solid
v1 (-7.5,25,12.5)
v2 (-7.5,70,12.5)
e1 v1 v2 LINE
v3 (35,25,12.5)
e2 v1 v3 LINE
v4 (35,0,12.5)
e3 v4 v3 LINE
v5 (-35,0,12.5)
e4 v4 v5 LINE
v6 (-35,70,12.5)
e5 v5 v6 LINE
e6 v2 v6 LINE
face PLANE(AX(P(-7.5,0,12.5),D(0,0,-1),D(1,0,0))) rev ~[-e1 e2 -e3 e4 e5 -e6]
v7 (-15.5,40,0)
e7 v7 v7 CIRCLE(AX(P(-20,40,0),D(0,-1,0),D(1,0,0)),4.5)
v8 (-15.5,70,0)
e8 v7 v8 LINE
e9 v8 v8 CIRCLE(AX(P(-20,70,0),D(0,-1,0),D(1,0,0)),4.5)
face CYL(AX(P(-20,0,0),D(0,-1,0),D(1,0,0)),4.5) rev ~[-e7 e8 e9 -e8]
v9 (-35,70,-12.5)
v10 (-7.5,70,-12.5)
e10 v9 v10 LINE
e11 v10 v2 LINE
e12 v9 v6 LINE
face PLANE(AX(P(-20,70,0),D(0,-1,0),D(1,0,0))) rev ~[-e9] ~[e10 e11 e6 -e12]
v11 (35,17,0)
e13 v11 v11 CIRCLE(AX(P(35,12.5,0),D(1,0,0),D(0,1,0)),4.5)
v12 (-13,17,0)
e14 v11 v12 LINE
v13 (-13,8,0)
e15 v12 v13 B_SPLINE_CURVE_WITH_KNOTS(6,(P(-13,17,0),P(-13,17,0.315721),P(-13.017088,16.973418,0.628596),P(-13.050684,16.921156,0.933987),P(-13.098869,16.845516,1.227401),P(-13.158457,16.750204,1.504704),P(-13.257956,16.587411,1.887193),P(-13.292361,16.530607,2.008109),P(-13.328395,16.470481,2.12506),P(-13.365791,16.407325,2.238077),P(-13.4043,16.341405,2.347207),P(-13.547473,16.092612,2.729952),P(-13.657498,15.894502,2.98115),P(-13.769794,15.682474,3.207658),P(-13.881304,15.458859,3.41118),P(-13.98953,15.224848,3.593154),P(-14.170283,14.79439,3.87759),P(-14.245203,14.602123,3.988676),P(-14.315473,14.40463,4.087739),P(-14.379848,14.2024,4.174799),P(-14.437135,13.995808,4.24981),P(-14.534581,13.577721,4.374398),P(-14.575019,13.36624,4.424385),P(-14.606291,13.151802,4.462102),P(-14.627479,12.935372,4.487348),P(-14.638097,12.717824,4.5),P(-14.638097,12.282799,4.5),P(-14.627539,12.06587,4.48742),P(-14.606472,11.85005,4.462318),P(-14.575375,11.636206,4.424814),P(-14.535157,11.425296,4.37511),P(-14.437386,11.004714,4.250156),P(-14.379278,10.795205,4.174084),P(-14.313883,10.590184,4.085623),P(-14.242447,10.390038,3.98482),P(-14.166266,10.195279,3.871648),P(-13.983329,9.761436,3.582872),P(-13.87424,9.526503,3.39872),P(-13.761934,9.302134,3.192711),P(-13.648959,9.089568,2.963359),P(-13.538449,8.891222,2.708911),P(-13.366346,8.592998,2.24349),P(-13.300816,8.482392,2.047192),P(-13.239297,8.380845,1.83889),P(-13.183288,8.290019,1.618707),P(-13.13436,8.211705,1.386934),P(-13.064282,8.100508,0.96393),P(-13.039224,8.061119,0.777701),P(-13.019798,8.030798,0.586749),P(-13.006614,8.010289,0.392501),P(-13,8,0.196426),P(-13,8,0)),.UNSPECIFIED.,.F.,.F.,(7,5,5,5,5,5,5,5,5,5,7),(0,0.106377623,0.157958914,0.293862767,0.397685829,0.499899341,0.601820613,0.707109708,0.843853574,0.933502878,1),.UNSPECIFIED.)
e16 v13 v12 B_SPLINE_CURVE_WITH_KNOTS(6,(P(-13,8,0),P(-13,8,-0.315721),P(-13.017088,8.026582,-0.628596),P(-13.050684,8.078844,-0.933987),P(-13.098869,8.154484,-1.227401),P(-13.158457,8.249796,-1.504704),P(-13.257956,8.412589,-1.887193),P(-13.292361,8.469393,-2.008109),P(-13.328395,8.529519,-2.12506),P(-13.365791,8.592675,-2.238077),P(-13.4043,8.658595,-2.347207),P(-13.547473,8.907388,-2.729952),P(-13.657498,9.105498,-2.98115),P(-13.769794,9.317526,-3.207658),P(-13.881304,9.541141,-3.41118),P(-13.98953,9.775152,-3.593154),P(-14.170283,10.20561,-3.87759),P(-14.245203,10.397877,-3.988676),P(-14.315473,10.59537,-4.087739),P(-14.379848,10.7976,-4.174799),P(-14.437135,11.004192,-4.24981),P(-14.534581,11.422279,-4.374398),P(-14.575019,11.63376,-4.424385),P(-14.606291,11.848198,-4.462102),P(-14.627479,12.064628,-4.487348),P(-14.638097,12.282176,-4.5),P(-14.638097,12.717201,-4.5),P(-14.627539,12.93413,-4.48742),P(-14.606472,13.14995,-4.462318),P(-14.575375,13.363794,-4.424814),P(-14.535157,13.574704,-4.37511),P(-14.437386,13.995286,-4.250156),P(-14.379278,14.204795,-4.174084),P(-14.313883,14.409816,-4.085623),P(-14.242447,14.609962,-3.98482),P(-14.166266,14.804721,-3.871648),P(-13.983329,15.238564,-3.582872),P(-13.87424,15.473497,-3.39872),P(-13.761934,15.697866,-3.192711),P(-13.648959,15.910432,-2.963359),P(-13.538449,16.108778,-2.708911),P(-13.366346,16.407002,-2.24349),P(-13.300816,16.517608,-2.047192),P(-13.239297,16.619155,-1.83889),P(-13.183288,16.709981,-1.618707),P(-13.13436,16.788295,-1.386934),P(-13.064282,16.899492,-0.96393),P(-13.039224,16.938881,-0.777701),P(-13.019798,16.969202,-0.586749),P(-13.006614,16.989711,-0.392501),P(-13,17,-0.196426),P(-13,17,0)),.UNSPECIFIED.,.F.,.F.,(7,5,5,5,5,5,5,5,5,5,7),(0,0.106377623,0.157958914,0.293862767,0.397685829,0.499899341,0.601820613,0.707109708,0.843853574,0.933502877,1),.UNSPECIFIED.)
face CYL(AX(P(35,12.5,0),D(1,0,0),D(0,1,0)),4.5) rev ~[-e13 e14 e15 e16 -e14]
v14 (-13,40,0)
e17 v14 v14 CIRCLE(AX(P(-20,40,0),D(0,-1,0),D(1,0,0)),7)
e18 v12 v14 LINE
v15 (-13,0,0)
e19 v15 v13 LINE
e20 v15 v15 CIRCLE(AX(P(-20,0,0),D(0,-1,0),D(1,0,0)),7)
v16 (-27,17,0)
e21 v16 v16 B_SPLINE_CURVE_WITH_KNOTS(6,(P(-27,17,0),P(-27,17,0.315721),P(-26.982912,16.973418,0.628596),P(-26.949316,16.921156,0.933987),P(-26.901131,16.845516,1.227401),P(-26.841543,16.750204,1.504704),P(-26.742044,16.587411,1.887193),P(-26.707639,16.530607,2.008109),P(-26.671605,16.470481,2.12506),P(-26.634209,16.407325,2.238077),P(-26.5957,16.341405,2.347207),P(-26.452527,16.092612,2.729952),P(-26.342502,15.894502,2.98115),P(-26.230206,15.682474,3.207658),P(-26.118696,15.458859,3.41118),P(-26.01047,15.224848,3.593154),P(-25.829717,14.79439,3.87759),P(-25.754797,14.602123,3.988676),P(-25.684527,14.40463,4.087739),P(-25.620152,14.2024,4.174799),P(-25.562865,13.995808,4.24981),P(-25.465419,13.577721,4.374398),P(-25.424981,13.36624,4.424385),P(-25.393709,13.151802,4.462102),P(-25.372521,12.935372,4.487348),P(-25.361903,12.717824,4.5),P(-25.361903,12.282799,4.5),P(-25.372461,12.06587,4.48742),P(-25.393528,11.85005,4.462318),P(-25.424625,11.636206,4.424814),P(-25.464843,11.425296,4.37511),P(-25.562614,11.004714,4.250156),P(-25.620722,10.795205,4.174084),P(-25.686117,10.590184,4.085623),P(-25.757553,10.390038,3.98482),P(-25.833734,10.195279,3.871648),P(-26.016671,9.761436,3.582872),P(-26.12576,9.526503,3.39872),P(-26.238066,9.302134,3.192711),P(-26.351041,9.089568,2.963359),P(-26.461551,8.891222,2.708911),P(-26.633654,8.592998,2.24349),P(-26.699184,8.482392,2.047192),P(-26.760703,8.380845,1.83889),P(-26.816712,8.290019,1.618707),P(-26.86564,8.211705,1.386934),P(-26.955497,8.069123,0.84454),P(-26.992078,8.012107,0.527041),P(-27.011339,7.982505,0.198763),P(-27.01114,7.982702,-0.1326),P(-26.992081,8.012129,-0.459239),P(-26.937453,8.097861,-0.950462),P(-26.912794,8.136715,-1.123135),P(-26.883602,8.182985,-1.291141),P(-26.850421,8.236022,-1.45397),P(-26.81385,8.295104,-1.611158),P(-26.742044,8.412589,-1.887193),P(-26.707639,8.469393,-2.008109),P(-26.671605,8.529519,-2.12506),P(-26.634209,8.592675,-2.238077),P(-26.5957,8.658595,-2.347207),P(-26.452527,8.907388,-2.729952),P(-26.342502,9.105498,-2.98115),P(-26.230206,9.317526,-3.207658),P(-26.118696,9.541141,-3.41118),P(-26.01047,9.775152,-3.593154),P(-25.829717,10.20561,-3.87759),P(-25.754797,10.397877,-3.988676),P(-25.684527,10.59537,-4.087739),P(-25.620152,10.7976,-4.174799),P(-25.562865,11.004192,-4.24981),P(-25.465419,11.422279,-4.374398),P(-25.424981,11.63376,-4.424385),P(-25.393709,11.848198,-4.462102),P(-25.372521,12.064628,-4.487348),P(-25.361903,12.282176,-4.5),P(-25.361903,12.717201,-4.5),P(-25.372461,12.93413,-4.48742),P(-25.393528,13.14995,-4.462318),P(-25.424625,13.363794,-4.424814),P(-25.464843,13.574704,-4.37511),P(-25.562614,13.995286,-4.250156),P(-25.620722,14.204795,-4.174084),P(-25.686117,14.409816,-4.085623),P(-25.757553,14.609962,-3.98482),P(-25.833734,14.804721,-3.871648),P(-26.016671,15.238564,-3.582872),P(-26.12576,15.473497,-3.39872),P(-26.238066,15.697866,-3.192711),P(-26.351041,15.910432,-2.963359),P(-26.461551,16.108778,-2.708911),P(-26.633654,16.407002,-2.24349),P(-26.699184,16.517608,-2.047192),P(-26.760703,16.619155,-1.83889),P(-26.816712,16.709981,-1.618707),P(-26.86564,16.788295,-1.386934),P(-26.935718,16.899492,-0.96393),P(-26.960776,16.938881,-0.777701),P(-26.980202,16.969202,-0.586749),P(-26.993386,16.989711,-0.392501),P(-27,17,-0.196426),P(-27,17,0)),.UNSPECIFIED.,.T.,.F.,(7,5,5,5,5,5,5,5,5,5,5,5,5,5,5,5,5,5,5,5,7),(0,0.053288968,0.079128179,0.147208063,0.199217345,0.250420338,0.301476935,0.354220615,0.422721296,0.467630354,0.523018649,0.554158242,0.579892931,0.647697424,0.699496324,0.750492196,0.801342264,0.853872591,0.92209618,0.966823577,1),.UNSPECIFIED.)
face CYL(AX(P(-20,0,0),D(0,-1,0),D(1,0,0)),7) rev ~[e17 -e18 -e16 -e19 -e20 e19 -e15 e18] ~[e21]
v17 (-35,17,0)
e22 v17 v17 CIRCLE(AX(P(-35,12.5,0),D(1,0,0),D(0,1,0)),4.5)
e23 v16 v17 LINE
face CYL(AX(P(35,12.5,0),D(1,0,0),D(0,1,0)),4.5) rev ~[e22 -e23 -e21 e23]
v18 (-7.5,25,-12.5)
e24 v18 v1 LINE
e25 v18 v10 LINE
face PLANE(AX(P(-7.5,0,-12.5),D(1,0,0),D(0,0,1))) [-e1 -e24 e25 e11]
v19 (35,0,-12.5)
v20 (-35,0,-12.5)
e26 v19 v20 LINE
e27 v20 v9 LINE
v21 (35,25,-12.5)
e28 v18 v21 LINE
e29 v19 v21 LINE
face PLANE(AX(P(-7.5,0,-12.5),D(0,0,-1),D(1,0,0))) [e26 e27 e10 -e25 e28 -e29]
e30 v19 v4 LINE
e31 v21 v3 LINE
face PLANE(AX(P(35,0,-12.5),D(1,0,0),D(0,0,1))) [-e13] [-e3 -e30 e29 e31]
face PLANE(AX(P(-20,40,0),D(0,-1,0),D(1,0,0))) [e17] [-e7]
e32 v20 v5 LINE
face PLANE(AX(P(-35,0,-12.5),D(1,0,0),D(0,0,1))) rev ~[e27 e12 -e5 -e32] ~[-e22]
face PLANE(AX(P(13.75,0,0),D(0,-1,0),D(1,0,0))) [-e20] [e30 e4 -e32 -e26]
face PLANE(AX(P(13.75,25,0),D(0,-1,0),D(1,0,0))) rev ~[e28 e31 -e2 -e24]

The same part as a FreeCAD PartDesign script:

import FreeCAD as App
import Part
import Sketcher
from FreeCAD import Vector


def add_polygon(sketch, points):
    """Adds a closed chain of lines whose ends are joined by coincident constraints."""
    first, n = sketch.GeometryCount, len(points)
    for a, b in zip(points, points[1:] + points[:1]):
        sketch.addGeometry(Part.LineSegment(App.Vector(*a, 0), App.Vector(*b, 0)), False)
    for i in range(n):
        sketch.addConstraint(Sketcher.Constraint("Coincident", first + i, 2, first + (i + 1) % n, 1))

doc = App.newDocument("Part")
body = doc.addObject("PartDesign::Body", "Body")

sketch1 = doc.addObject("Sketcher::SketchObject", "Sketch")
body.addObject(sketch1)
sketch1.AttachmentSupport = (doc.XZ_Plane, [""])
sketch1.MapMode = "FlatFace"
add_polygon(sketch1, [(-7.5, -12.5), (-7.5, 12.5), (-35, 12.5), (-35, -12.5)])
sketch1.addGeometry(Part.Circle(Vector(-20, 0, 0), Vector(0, 0, 1), 4.5), False)
sketch1.addConstraint([
    Sketcher.Constraint("Vertical", 0),
    Sketcher.Constraint("Horizontal", 1),
    Sketcher.Constraint("Vertical", 2),
    Sketcher.Constraint("Horizontal", 3),
    Sketcher.Constraint("PointOnObject", 4, 3, -1),
    Sketcher.Constraint("Diameter", 4, 9.0),
    Sketcher.Constraint("DistanceY", 0, 1, 0, 2, 25.0),
    Sketcher.Constraint("DistanceX", 1, 2, 1, 1, 27.5),
    Sketcher.Constraint("DistanceX", 4, 3, -1, 1, 20.0),
    Sketcher.Constraint("DistanceX", 1, 2, -1, 1, 35.0),
    Sketcher.Constraint("DistanceY", -1, 1, 0, 2, 12.5),
])
pad1 = doc.addObject("PartDesign::Pad", "Pad")
body.addObject(pad1)
pad1.Profile = sketch1
pad1.Length = 70
pad1.Reversed = True

sketch2 = doc.addObject("Sketcher::SketchObject", "Sketch001")
body.addObject(sketch2)
sketch2.AttachmentSupport = (doc.XZ_Plane, [""])
sketch2.MapMode = "FlatFace"
sketch2.addGeometry([
    Part.Circle(Vector(-20, 0, 0), Vector(0, 0, 1), 7),
    Part.Circle(Vector(-20, 0, 0), Vector(0, 0, 1), 4.5),
], False)
sketch2.addConstraint([
    Sketcher.Constraint("Coincident", 1, 3, 0, 3),
    Sketcher.Constraint("PointOnObject", 0, 3, -1),
    Sketcher.Constraint("Diameter", 0, 14.0),
    Sketcher.Constraint("Diameter", 1, 9.0),
    Sketcher.Constraint("DistanceX", 0, 3, -1, 1, 20.0),
])
pocket1 = doc.addObject("PartDesign::Pocket", "Pocket")
body.addObject(pocket1)
pocket1.Profile = sketch2
pocket1.Length = 40

sketch3 = doc.addObject("Sketcher::SketchObject", "Sketch002")
body.addObject(sketch3)
sketch3.AttachmentSupport = (doc.XZ_Plane, [""])
sketch3.MapMode = "FlatFace"
add_polygon(sketch3, [(-8, 12), (-8, -12), (35, -12), (35, 12)])
sketch3.addConstraint([
    Sketcher.Constraint("Vertical", 0),
    Sketcher.Constraint("Horizontal", 1),
    Sketcher.Constraint("Vertical", 2),
    Sketcher.Constraint("Horizontal", 3),
    Sketcher.Constraint("DistanceY", 0, 2, 0, 1, 25.0),
    Sketcher.Constraint("DistanceX", 1, 1, 1, 2, 42.5),
    Sketcher.Constraint("DistanceX", -1, 1, 1, 2, 35.0),
    Sketcher.Constraint("DistanceY", 0, 2, -1, 1, 12.5),
])
pad2 = doc.addObject("PartDesign::Pad", "Pad001")
body.addObject(pad2)
pad2.Profile = sketch3
pad2.Length = 25
pad2.Reversed = True

sketch4 = doc.addObject("Sketcher::SketchObject", "Sketch003")
body.addObject(sketch4)
sketch4.AttachmentSupport = (doc.YZ_Plane, [""])
sketch4.MapMode = "FlatFace"
sketch4.AttachmentOffset = App.Placement(Vector(0, 0, 35), App.Rotation())
sketch4.addGeometry(Part.Circle(Vector(12.5, 0, 0), Vector(0, 0, 1), 4.5), False)
sketch4.addConstraint([
    Sketcher.Constraint("PointOnObject", 0, 3, -1),
    Sketcher.Constraint("Diameter", 0, 9.0),
    Sketcher.Constraint("DistanceX", -1, 1, 0, 3, 12.5),
])
pocket2 = doc.addObject("PartDesign::Pocket", "Pocket001")
body.addObject(pocket2)
pocket2.Profile = sketch4
pocket2.Type = "ThroughAll"

doc.recompute()
